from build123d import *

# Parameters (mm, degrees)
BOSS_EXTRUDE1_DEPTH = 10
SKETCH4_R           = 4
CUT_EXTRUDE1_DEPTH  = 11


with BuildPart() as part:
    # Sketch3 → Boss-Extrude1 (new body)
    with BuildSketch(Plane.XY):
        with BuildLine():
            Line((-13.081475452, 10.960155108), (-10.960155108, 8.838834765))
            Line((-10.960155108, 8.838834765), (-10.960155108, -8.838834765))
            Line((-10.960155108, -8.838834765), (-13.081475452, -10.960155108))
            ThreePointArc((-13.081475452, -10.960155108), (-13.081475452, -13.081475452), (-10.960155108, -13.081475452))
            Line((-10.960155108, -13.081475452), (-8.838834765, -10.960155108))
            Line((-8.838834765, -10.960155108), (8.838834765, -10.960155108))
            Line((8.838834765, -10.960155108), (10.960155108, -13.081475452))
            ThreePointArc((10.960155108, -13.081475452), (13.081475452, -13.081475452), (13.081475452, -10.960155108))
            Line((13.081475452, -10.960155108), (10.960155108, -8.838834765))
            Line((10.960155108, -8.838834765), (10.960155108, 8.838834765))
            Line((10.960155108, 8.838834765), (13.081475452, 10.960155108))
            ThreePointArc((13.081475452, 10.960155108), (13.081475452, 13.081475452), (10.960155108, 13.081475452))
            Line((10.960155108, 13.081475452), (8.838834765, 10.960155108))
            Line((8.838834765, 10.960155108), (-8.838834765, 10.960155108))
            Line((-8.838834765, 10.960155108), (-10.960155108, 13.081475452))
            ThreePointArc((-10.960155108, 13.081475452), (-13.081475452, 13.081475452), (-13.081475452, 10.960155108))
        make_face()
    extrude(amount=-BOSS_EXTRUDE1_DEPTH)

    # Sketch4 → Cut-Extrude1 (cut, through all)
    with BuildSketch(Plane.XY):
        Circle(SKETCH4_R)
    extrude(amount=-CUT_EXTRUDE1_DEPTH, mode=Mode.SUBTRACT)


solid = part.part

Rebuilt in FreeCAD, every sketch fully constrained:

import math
import FreeCAD as App
import Part
import Sketcher
Q = App.Units.Quantity

doc = App.newDocument("Part")
params = doc.addObject("Spreadsheet::Sheet", "Params")
for row, (alias, value) in enumerate([
    ("sketch1_radius", "1.5 mm"),
    ("pad1_length", "10 mm"),
    ("sketch2_diameter", "8 mm"),
], start=1):
    params.set(f"A{row}", alias)
    params.set(f"B{row}", "=" + value)
    params.setAlias(f"B{row}", alias)

body = doc.addObject("PartDesign::Body", "Body")

# Sketch on XY plane
sketch1 = body.newObject("Sketcher::SketchObject", "Sketch")
sketch1.AttachmentSupport = (doc.getObject("XY_Plane"), [""])
sketch1.MapMode = "FlatFace"
sketch1.addGeometry(Part.LineSegment(App.Vector(-13.081475, 10.960155, 0), App.Vector(-10.960155, 8.838835, 0)), False)
sketch1.addGeometry(Part.LineSegment(App.Vector(-10.960155, 8.838835, 0), App.Vector(-10.960155, -8.838835, 0)), False)
sketch1.addGeometry(Part.LineSegment(App.Vector(-10.960155, -8.838835, 0), App.Vector(-13.081475, -10.960155, 0)), False)
sketch1.addGeometry(Part.ArcOfCircle(Part.Circle(App.Vector(-12.020815, -12.020815, 0), App.Vector(0, 0, 1), 1.5), math.radians(135), math.radians(315)), False)
sketch1.addGeometry(Part.LineSegment(App.Vector(-10.960155, -13.081475, 0), App.Vector(-8.838835, -10.960155, 0)), False)
sketch1.addGeometry(Part.LineSegment(App.Vector(-8.838835, -10.960155, 0), App.Vector(8.838835, -10.960155, 0)), False)
sketch1.addGeometry(Part.LineSegment(App.Vector(8.838835, -10.960155, 0), App.Vector(10.960155, -13.081475, 0)), False)
sketch1.addGeometry(Part.ArcOfCircle(Part.Circle(App.Vector(12.020815, -12.020815, 0), App.Vector(0, 0, 1), 1.5), math.radians(-135), math.radians(45)), False)
sketch1.addGeometry(Part.LineSegment(App.Vector(13.081475, -10.960155, 0), App.Vector(10.960155, -8.838835, 0)), False)
sketch1.addGeometry(Part.LineSegment(App.Vector(10.960155, -8.838835, 0), App.Vector(10.960155, 8.838835, 0)), False)
sketch1.addGeometry(Part.LineSegment(App.Vector(10.960155, 8.838835, 0), App.Vector(13.081475, 10.960155, 0)), False)
sketch1.addGeometry(Part.ArcOfCircle(Part.Circle(App.Vector(12.020815, 12.020815, 0), App.Vector(0, 0, 1), 1.5), math.radians(-45), math.radians(135)), False)
sketch1.addGeometry(Part.LineSegment(App.Vector(10.960155, 13.081475, 0), App.Vector(8.838835, 10.960155, 0)), False)
sketch1.addGeometry(Part.LineSegment(App.Vector(8.838835, 10.960155, 0), App.Vector(-8.838835, 10.960155, 0)), False)
sketch1.addGeometry(Part.LineSegment(App.Vector(-8.838835, 10.960155, 0), App.Vector(-10.960155, 13.081475, 0)), False)
sketch1.addGeometry(Part.ArcOfCircle(Part.Circle(App.Vector(-12.020815, 12.020815, 0), App.Vector(0, 0, 1), 1.5), math.radians(45), math.radians(225)), False)
sketch1.addConstraint(Sketcher.Constraint("Coincident", 0, 2, 1, 1))
sketch1.addConstraint(Sketcher.Constraint("Coincident", 1, 2, 2, 1))
sketch1.addConstraint(Sketcher.Constraint("Tangent", 2, 2, 3, 1))
sketch1.addConstraint(Sketcher.Constraint("Tangent", 3, 2, 4, 1))
sketch1.addConstraint(Sketcher.Constraint("Coincident", 4, 2, 5, 1))
sketch1.addConstraint(Sketcher.Constraint("Coincident", 5, 2, 6, 1))
sketch1.addConstraint(Sketcher.Constraint("Tangent", 6, 2, 7, 1))
sketch1.addConstraint(Sketcher.Constraint("Tangent", 7, 2, 8, 1))
sketch1.addConstraint(Sketcher.Constraint("Coincident", 8, 2, 9, 1))
sketch1.addConstraint(Sketcher.Constraint("Coincident", 9, 2, 10, 1))
sketch1.addConstraint(Sketcher.Constraint("Tangent", 10, 2, 11, 1))
sketch1.addConstraint(Sketcher.Constraint("Tangent", 11, 2, 12, 1))
sketch1.addConstraint(Sketcher.Constraint("Coincident", 12, 2, 13, 1))
sketch1.addConstraint(Sketcher.Constraint("Coincident", 13, 2, 14, 1))
sketch1.addConstraint(Sketcher.Constraint("Tangent", 14, 2, 15, 1))
sketch1.addConstraint(Sketcher.Constraint("Tangent", 15, 2, 0, 1))
sketch1.addConstraint(Sketcher.Constraint("Vertical", 1))
sketch1.addConstraint(Sketcher.Constraint("Horizontal", 5))
sketch1.addConstraint(Sketcher.Constraint("Vertical", 9))
sketch1.addConstraint(Sketcher.Constraint("Horizontal", 13))
sketch1.addConstraint(Sketcher.Constraint("Equal", 3, 7))
sketch1.addConstraint(Sketcher.Constraint("Equal", 7, 11))
sketch1.addConstraint(Sketcher.Constraint("Equal", 11, 15))
sketch1.addConstraint(Sketcher.Constraint("Symmetric", 3, 3, 11, 3, -1, 1))
sketch1.addConstraint(Sketcher.Constraint("Symmetric", 7, 3, 15, 3, -1, 1))
sketch1.addConstraint(Sketcher.Constraint("Symmetric", 0, 2, 8, 2, -1, 1))
sketch1.addConstraint(Sketcher.Constraint("Symmetric", 4, 2, 12, 2, -1, 1))
sketch1.addConstraint(Sketcher.Constraint("Symmetric", 3, 3, 7, 3, -2))
sketch1.addConstraint(Sketcher.Constraint("Perpendicular", 0, 2))
sketch1.addConstraint(Sketcher.Constraint("Parallel", 2, 4))
sketch1.addConstraint(Sketcher.Constraint("Perpendicular", 4, 6))
sketch1.addConstraint(Sketcher.Constraint("Perpendicular", 8, 10))
sketch1.addConstraint(Sketcher.Constraint("Perpendicular", 12, 14))
sketch1.addConstraint(Sketcher.Constraint("Horizontal", 2, 2, 4, 2))
sketch1.addConstraint(Sketcher.Constraint("Horizontal", 3, 2, 6, 2))
sketch1.addConstraint(Sketcher.Constraint("Vertical", 1, 2, 3, 2))
sketch1.addConstraint(Sketcher.Constraint("Equal", 13, 1))
sketch1.addConstraint(Sketcher.Constraint("Radius", 3, Q("1.5 mm")))
sketch1.addConstraint(Sketcher.Constraint("DistanceX", 5, 1, 5, 2, Q("17.67767 mm")))
sketch1.setExpression("Constraints[37]", "Params.sketch1_radius")
pad1 = body.newObject("PartDesign::Pad", "Pad")
pad1.Profile = sketch1
pad1.setExpression("Length", "Params.pad1_length")
pad1.Reversed = True

# Sketch on XY plane
sketch2 = body.newObject("Sketcher::SketchObject", "Sketch001")
sketch2.AttachmentSupport = (doc.getObject("XY_Plane"), [""])
sketch2.MapMode = "FlatFace"
sketch2.addGeometry(Part.Circle(App.Vector(0, 0, 0), App.Vector(0, 0, 1), 4), False)
sketch2.addConstraint(Sketcher.Constraint("Coincident", 0, 3, -1, 1))
sketch2.addConstraint(Sketcher.Constraint("Diameter", 0, Q("8 mm")))
sketch2.setExpression("Constraints[1]", "Params.sketch2_diameter")
pocket1 = body.newObject("PartDesign::Pocket", "Pocket")
pocket1.Profile = sketch2
pocket1.Type = "ThroughAll"

doc.recompute()
